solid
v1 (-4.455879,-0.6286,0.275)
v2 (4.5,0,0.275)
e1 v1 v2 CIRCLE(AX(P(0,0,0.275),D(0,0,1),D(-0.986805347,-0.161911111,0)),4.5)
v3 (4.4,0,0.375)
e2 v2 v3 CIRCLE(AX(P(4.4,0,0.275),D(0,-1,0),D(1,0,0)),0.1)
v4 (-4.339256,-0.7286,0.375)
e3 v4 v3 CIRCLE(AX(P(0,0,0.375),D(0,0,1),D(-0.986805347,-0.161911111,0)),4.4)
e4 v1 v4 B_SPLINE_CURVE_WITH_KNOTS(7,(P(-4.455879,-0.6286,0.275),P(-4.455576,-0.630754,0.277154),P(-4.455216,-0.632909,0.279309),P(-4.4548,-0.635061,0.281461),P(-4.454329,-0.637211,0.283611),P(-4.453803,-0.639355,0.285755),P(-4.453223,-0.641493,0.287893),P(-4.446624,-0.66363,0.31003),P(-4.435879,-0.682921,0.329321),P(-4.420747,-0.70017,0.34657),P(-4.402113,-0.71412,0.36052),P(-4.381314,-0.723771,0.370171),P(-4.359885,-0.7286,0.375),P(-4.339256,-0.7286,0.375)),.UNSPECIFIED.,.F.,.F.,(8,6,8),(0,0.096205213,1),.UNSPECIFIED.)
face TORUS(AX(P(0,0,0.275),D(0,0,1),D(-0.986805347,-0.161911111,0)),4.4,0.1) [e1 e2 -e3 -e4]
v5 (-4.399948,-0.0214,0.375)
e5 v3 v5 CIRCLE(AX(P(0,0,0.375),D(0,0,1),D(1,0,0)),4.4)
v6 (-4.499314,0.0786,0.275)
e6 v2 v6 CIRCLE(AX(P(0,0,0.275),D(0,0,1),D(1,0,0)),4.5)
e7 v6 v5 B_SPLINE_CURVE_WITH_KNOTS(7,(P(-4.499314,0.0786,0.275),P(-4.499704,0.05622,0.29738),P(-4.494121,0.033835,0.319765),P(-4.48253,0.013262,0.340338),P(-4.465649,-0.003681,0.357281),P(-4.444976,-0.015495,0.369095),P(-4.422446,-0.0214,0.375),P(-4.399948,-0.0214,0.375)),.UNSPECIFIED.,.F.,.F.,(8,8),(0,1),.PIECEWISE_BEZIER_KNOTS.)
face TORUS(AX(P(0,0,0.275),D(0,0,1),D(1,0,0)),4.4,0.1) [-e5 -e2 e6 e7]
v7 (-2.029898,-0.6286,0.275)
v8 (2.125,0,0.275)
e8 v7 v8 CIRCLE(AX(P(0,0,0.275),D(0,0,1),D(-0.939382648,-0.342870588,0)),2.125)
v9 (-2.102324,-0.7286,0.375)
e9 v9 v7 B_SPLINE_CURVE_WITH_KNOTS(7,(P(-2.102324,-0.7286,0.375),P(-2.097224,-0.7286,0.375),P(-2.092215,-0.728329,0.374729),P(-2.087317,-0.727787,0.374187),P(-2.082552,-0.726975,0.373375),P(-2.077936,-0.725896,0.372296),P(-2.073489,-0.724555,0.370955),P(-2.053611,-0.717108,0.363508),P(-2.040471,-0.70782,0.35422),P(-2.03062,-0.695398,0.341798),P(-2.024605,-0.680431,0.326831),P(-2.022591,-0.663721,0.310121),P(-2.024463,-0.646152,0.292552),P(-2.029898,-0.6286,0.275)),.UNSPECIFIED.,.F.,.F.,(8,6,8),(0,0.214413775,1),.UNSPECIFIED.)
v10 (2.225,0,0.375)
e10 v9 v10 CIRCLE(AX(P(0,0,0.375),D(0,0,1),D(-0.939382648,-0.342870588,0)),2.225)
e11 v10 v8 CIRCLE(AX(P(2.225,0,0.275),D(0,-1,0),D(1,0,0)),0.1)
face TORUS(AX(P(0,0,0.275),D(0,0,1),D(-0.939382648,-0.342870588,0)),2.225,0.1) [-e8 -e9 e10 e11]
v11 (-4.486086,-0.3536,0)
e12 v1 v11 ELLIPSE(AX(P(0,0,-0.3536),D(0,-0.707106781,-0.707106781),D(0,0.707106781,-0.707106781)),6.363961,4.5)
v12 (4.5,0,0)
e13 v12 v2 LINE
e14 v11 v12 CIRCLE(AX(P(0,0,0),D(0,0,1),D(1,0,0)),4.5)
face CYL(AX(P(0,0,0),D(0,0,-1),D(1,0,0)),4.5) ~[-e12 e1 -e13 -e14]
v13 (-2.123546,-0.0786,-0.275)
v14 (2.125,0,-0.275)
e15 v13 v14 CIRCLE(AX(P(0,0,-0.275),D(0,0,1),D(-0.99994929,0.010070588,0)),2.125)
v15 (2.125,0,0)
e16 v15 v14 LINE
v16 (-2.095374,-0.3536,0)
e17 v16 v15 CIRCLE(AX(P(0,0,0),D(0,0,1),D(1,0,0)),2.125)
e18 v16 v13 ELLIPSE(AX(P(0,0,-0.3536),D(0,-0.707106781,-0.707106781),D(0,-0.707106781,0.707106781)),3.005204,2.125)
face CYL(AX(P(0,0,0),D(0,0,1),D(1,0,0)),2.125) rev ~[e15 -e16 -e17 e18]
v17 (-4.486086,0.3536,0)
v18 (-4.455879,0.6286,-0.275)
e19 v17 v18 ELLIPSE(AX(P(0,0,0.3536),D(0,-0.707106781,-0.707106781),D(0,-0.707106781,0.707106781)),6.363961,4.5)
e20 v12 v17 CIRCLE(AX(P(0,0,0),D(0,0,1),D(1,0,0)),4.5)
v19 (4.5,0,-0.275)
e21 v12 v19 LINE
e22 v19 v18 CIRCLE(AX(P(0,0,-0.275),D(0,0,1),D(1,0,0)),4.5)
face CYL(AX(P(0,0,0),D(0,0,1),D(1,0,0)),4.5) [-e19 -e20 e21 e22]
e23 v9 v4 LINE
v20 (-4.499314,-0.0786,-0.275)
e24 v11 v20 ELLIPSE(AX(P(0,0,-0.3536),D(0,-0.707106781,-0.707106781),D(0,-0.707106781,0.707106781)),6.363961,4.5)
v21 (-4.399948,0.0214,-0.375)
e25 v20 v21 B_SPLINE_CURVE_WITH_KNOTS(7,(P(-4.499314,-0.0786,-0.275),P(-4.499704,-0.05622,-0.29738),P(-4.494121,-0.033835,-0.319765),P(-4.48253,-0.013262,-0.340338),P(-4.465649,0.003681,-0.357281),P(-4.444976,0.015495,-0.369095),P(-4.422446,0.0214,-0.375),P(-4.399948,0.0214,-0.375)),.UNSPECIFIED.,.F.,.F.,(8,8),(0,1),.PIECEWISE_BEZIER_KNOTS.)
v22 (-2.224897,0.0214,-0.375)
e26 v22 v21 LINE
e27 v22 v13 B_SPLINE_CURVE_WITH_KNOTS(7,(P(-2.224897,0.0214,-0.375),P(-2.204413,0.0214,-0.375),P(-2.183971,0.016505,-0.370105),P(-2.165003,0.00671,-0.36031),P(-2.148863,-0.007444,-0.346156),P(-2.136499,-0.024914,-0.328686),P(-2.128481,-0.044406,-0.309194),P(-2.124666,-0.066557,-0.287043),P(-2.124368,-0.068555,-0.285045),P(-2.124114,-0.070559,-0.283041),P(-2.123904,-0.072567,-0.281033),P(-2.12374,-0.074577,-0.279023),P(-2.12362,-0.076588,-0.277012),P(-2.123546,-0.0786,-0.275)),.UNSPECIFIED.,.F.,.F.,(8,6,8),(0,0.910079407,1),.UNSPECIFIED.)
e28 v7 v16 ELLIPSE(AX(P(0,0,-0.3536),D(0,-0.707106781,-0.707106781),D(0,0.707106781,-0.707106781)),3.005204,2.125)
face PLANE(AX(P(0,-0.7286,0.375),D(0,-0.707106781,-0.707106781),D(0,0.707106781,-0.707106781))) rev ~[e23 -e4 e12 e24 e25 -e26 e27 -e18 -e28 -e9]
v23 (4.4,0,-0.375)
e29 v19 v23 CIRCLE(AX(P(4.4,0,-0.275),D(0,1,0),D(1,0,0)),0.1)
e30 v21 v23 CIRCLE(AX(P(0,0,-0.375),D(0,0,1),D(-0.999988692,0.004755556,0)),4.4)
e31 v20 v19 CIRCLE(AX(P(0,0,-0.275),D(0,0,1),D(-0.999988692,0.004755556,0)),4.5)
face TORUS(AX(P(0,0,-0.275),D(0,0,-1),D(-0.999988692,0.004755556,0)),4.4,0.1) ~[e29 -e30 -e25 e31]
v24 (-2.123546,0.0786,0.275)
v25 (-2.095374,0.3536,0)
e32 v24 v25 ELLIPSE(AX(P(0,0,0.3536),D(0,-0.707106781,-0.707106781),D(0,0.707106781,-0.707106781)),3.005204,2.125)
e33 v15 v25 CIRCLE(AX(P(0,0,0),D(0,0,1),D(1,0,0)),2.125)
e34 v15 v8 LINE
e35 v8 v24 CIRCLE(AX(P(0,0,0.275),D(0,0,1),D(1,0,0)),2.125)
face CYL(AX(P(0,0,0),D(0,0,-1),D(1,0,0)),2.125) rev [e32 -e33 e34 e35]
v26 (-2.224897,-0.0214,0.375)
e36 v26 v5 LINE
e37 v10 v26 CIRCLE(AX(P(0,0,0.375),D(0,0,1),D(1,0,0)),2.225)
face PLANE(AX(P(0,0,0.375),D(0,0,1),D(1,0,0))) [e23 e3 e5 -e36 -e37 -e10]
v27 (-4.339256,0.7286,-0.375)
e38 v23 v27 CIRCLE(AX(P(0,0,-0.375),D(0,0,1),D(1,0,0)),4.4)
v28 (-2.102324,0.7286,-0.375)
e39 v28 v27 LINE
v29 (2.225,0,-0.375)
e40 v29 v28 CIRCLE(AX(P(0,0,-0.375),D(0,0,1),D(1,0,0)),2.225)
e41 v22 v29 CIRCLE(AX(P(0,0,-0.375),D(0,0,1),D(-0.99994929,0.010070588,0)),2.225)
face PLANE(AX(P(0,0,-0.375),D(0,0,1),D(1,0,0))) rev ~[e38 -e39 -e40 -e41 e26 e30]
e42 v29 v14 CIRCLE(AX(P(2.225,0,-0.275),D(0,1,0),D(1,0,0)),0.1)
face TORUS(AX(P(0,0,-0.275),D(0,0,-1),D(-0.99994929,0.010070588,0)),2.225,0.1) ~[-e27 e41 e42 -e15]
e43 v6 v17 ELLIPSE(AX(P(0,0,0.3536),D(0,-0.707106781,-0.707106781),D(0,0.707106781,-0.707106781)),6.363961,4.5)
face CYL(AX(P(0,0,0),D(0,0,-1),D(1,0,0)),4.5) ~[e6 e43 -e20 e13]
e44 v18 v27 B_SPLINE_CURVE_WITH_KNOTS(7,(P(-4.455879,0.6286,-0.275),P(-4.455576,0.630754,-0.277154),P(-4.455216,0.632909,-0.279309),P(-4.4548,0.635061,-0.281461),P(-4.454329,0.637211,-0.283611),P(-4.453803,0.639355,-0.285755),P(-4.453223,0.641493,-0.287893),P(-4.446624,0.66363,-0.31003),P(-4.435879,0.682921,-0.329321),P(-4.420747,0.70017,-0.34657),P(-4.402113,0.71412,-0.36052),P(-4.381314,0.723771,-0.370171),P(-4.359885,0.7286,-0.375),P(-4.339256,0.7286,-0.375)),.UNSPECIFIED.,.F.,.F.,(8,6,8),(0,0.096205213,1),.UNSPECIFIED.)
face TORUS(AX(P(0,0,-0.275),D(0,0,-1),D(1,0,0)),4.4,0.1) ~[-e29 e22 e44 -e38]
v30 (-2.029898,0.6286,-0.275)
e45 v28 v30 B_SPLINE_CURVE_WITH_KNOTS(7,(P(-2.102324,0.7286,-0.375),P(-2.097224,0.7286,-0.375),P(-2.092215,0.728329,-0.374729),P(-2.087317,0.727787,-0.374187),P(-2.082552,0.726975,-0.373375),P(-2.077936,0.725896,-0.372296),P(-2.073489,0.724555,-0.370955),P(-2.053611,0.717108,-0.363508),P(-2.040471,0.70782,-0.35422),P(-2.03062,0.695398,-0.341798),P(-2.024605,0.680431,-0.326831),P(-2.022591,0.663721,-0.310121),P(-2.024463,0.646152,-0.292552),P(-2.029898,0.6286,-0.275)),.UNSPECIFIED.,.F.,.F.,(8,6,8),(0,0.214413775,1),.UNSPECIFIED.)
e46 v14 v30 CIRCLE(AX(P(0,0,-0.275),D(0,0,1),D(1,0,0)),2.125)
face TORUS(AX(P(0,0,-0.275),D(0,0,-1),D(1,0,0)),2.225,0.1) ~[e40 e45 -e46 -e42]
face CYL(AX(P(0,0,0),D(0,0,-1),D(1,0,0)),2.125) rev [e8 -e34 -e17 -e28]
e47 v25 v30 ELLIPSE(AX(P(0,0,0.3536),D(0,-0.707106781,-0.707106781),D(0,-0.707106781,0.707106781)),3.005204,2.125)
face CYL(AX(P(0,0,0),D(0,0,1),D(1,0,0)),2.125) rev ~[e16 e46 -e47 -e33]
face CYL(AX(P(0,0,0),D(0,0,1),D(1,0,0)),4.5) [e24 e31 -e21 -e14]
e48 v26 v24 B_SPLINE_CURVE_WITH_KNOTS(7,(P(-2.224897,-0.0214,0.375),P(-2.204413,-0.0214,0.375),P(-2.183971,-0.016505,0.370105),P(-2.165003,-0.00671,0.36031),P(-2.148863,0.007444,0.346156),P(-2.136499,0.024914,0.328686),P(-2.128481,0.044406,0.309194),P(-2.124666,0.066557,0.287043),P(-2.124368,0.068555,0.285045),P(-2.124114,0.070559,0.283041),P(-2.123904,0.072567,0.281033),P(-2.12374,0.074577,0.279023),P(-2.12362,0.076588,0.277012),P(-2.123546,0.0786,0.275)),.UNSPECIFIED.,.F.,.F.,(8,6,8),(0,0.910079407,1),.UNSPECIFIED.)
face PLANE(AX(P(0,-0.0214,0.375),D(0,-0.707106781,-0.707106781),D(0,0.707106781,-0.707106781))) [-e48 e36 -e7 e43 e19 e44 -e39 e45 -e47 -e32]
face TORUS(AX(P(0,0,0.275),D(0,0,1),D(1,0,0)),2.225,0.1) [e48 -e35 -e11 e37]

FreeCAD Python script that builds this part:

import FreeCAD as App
import Part
import Sketcher
from FreeCAD import Vector
Q = App.Units.Quantity


def edges_at(feature, points):
    """Names of the edges that pass closest to the given points."""
    edges = feature.Shape.Edges
    near = lambda p: min(range(len(edges)), key=lambda i: edges[i].distToShape(Part.Vertex(*p))[0])
    return sorted({f"Edge{near(p) + 1}" for p in points})


def add_polygon(sketch, points):
    """Adds a closed chain of lines whose ends are joined by coincident constraints."""
    first, n = sketch.GeometryCount, len(points)
    for a, b in zip(points, points[1:] + points[:1]):
        sketch.addGeometry(Part.LineSegment(App.Vector(*a, 0), App.Vector(*b, 0)), False)
    for i in range(n):
        sketch.addConstraint(Sketcher.Constraint("Coincident", first + i, 2, first + (i + 1) % n, 1))

doc = App.newDocument("Part")
body = doc.addObject("PartDesign::Body", "Body")

# Sketch on XY plane
sketch1 = doc.addObject("Sketcher::SketchObject", "Sketch")
body.addObject(sketch1)
sketch1.AttachmentSupport = (doc.XY_Plane, [""])
sketch1.MapMode = "FlatFace"
sketch1.addGeometry(Part.Circle(Vector(0, 0, 0), Vector(0, 0, 1), 4.5), False)
sketch1.addGeometry(Part.Circle(Vector(0, 0, 0), Vector(0, 0, 1), 2.125), False)
sketch1.addConstraint(Sketcher.Constraint("Coincident", 0, 3, -1, 1))
sketch1.addConstraint(Sketcher.Constraint("Coincident", 1, 3, -1, 1))
sketch1.addConstraint(Sketcher.Constraint("Diameter", 0, Q("9 mm")))
sketch1.addConstraint(Sketcher.Constraint("Diameter", 1, Q("4.25 mm")))
pad1 = doc.addObject("PartDesign::Pad", "Pad")
body.addObject(pad1)
pad1.Profile = sketch1
pad1.Length = 0.75
pad1.Midplane = True

# Sketch on YZ plane
sketch2 = doc.addObject("Sketcher::SketchObject", "Sketch001")
body.addObject(sketch2)
sketch2.AttachmentSupport = (doc.YZ_Plane, [""])
sketch2.MapMode = "FlatFace"
add_polygon(sketch2, [(-0.0214, 0.375), (-0.7286, 0.375), (0.0214, -0.375), (0.7286, -0.375)])  # lines 0-3
sketch2.addConstraint(Sketcher.Constraint("Horizontal", 0))
sketch2.addConstraint(Sketcher.Constraint("Horizontal", 2))
sketch2.addConstraint(Sketcher.Constraint("Symmetric", 0, 2, 2, 2, -1, 1))
sketch2.addConstraint(Sketcher.Constraint("Parallel", 1, 3))
sketch2.addConstraint(Sketcher.Constraint("Angle", 1, Q("-45 deg")))
sketch2.addConstraint(Sketcher.Constraint("DistanceX", 0, 2, 1, 2, Q("0.75 mm")))
sketch2.addConstraint(Sketcher.Constraint("DistanceX", 0, 2, 0, 1, Q("0.7072 mm")))
pocket1 = doc.addObject("PartDesign::Pocket", "Pocket")
body.addObject(pocket1)
pocket1.Profile = sketch2
pocket1.Type = "ThroughAll"
doc.recompute()

fillet = doc.addObject("PartDesign::Fillet", "Fillet")
body.addObject(fillet)
fillet.Base = (pocket1, edges_at(pocket1, [
    (-0.011, 4.5, 0.375),
    (0.365, -4.485, 0.375),
    (0.365, 4.485, -0.375),
    (-0.011, -4.5, -0.375),
    (0.37, -2.093, 0.375),
    (-0.011, 2.125, 0.375),
    (-0.011, -2.125, -0.375),
    (0.37, 2.093, -0.375),
]))
fillet.Radius = 0.1

doc.recompute()
